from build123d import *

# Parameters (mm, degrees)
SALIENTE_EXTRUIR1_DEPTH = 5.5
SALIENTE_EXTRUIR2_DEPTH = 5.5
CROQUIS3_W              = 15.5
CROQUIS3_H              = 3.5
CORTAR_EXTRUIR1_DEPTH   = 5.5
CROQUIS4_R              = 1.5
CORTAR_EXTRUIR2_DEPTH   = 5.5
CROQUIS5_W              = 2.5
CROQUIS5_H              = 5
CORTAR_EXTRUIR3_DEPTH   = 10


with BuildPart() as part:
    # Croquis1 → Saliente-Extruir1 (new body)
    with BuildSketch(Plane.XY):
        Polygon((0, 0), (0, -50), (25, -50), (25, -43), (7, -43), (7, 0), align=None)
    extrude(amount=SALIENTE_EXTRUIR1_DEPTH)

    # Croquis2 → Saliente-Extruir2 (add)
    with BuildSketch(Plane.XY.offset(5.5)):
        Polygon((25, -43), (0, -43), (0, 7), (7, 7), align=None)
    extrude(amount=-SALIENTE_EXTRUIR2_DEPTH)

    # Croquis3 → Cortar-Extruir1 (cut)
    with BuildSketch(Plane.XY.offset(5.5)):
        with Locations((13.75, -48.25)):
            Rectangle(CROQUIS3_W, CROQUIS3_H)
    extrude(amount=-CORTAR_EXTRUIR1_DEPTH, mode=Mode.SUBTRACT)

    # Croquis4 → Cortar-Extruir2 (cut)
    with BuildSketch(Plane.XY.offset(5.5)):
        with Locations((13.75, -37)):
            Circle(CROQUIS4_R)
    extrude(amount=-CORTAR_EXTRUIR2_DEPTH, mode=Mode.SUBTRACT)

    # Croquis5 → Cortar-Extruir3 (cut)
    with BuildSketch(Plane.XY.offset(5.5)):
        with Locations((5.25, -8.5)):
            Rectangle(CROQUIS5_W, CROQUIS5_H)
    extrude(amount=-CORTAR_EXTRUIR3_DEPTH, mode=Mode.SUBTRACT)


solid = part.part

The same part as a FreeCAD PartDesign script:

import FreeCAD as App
import Part
import Sketcher

V = App.Vector
Q = App.Units.Quantity


def add_polygon(sketch, points):
    """Adds a closed chain of lines whose ends are joined by coincident constraints."""
    first, n = sketch.GeometryCount, len(points)
    for a, b in zip(points, points[1:] + points[:1]):
        sketch.addGeometry(Part.LineSegment(App.Vector(*a, 0), App.Vector(*b, 0)), False)
    for i in range(n):
        sketch.addConstraint(Sketcher.Constraint("Coincident", first + i, 2, first + (i + 1) % n, 1))

doc = App.newDocument("Part")
body = doc.addObject("PartDesign::Body", "Body")

# Sketch on XY plane
sketch1 = doc.addObject("Sketcher::SketchObject", "Sketch")
body.addObject(sketch1)
sketch1.AttachmentSupport = (doc.XY_Plane, [""])
sketch1.MapMode = "FlatFace"
add_polygon(sketch1, [(0, 0), (0, -50), (25, -50), (25, -43), (7, -43), (7, 0)])  # lines 0-5
sketch1.addConstraint(Sketcher.Constraint("Vertical", 0))
sketch1.addConstraint(Sketcher.Constraint("Horizontal", 1))
sketch1.addConstraint(Sketcher.Constraint("Vertical", 2))
sketch1.addConstraint(Sketcher.Constraint("Horizontal", 3))
sketch1.addConstraint(Sketcher.Constraint("Vertical", 4))
sketch1.addConstraint(Sketcher.Constraint("Horizontal", 5))
sketch1.addConstraint(Sketcher.Constraint("Coincident", 5, 2, -1, 1))
sketch1.addConstraint(Sketcher.Constraint("Equal", 5, 2))
sketch1.addConstraint(Sketcher.Constraint("DistanceX", 1, 1, 1, 2, Q("25 mm")))
sketch1.addConstraint(Sketcher.Constraint("DistanceX", 3, 2, 3, 1, Q("18 mm")))
sketch1.addConstraint(Sketcher.Constraint("DistanceY", 0, 2, 0, 1, Q("50 mm")))
pad1 = doc.addObject("PartDesign::Pad", "Pad")
body.addObject(pad1)
pad1.Profile = sketch1
pad1.Length = 5.5

# Sketch on XY plane
sketch2 = doc.addObject("Sketcher::SketchObject", "Sketch001")
body.addObject(sketch2)
sketch2.AttachmentSupport = (doc.XY_Plane, [""])
sketch2.MapMode = "FlatFace"
sketch2.AttachmentOffset = App.Placement(V(0, 0, 5.5), App.Rotation())
add_polygon(sketch2, [(0, -43), (25, -43), (7, 7), (0, 7)])  # lines 0-3
sketch2.addConstraint(Sketcher.Constraint("Horizontal", 0))
sketch2.addConstraint(Sketcher.Constraint("Horizontal", 2))
sketch2.addConstraint(Sketcher.Constraint("Vertical", 3))
sketch2.addConstraint(Sketcher.Constraint("PointOnObject", 2, 2, -2))
sketch2.addConstraint(Sketcher.Constraint("DistanceX", 0, 1, 0, 2, Q("25 mm")))
sketch2.addConstraint(Sketcher.Constraint("DistanceX", 2, 2, 2, 1, Q("7 mm")))
sketch2.addConstraint(Sketcher.Constraint("DistanceY", 3, 2, 3, 1, Q("50 mm")))
sketch2.addConstraint(Sketcher.Constraint("DistanceY", 0, 2, -1, 1, Q("43 mm")))
pad2 = doc.addObject("PartDesign::Pad", "Pad001")
body.addObject(pad2)
pad2.Profile = sketch2
pad2.Length = 5.5
pad2.Reversed = True

# Sketch on XY plane
sketch3 = doc.addObject("Sketcher::SketchObject", "Sketch002")
body.addObject(sketch3)
sketch3.AttachmentSupport = (doc.XY_Plane, [""])
sketch3.MapMode = "FlatFace"
sketch3.AttachmentOffset = App.Placement(V(0, 0, 5.5), App.Rotation())
add_polygon(sketch3, [(6, -46.5), (6, -50), (21.5, -50), (21.5, -46.5)])  # lines 0-3
sketch3.addConstraint(Sketcher.Constraint("Vertical", 0))
sketch3.addConstraint(Sketcher.Constraint("Horizontal", 1))
sketch3.addConstraint(Sketcher.Constraint("Vertical", 2))
sketch3.addConstraint(Sketcher.Constraint("Horizontal", 3))
sketch3.addConstraint(Sketcher.Constraint("DistanceX", 1, 1, 1, 2, Q("15.5 mm")))
sketch3.addConstraint(Sketcher.Constraint("DistanceY", 0, 2, 0, 1, Q("3.5 mm")))
sketch3.addConstraint(Sketcher.Constraint("DistanceX", -1, 1, 0, 2, Q("6 mm")))
sketch3.addConstraint(Sketcher.Constraint("DistanceY", 0, 2, -1, 1, Q("50 mm")))
pocket1 = doc.addObject("PartDesign::Pocket", "Pocket")
body.addObject(pocket1)
pocket1.Profile = sketch3
pocket1.Length = 5.5

# Sketch on XY plane
sketch4 = doc.addObject("Sketcher::SketchObject", "Sketch003")
body.addObject(sketch4)
sketch4.AttachmentSupport = (doc.XY_Plane, [""])
sketch4.MapMode = "FlatFace"
sketch4.AttachmentOffset = App.Placement(V(0, 0, 5.5), App.Rotation())
sketch4.addGeometry(Part.Circle(V(13.75, -37, 0), V(0, 0, 1), 1.5), False)
sketch4.addConstraint(Sketcher.Constraint("Diameter", 0, Q("3 mm")))
sketch4.addConstraint(Sketcher.Constraint("DistanceY", 0, 3, -1, 1, Q("37 mm")))
sketch4.addConstraint(Sketcher.Constraint("DistanceX", -1, 1, 0, 3, Q("13.75 mm")))
pocket2 = doc.addObject("PartDesign::Pocket", "Pocket001")
body.addObject(pocket2)
pocket2.Profile = sketch4
pocket2.Length = 5.5

# Sketch on XY plane
sketch5 = doc.addObject("Sketcher::SketchObject", "Sketch004")
body.addObject(sketch5)
sketch5.AttachmentSupport = (doc.XY_Plane, [""])
sketch5.MapMode = "FlatFace"
sketch5.AttachmentOffset = App.Placement(V(0, 0, 5.5), App.Rotation())
add_polygon(sketch5, [(4, -6), (4, -11), (6.5, -11), (6.5, -6)])  # lines 0-3
sketch5.addConstraint(Sketcher.Constraint("Vertical", 0))
sketch5.addConstraint(Sketcher.Constraint("Horizontal", 1))
sketch5.addConstraint(Sketcher.Constraint("Vertical", 2))
sketch5.addConstraint(Sketcher.Constraint("Horizontal", 3))
sketch5.addConstraint(Sketcher.Constraint("DistanceY", 0, 2, 0, 1, Q("5 mm")))
sketch5.addConstraint(Sketcher.Constraint("DistanceX", 1, 1, 1, 2, Q("2.5 mm")))
sketch5.addConstraint(Sketcher.Constraint("DistanceX", -1, 1, 0, 2, Q("4 mm")))
sketch5.addConstraint(Sketcher.Constraint("DistanceY", 0, 2, -1, 1, Q("11 mm")))
pocket3 = doc.addObject("PartDesign::Pocket", "Pocket002")
body.addObject(pocket3)
pocket3.Profile = sketch5
pocket3.Length = 10

doc.recompute()
